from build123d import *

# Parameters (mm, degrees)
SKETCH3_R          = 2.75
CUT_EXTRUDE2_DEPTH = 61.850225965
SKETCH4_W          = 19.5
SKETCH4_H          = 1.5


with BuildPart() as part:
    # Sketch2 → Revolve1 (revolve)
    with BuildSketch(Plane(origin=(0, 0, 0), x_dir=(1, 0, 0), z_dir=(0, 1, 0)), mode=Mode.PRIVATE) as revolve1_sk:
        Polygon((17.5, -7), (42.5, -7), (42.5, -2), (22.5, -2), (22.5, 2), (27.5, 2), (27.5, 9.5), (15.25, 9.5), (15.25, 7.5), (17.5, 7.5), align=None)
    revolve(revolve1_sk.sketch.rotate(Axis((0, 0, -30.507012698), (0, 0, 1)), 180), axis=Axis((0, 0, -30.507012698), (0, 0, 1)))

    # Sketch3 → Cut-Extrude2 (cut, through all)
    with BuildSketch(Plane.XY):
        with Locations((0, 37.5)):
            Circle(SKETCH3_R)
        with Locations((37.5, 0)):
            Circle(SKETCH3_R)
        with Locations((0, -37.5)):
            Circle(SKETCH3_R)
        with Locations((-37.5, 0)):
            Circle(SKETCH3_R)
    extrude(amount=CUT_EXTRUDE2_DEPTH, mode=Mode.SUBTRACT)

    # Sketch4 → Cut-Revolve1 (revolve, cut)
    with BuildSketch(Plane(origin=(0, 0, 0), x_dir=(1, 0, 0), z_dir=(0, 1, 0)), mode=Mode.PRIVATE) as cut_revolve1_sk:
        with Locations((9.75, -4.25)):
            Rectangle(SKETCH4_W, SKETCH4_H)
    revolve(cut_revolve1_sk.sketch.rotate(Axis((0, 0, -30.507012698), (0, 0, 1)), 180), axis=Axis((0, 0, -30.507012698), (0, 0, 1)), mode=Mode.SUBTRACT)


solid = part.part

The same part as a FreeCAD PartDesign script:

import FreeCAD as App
import Part
import Sketcher

V = App.Vector


def add_polygon(sketch, points):
    """Adds a closed chain of lines whose ends are joined by coincident constraints."""
    first, n = sketch.GeometryCount, len(points)
    for a, b in zip(points, points[1:] + points[:1]):
        sketch.addGeometry(Part.LineSegment(App.Vector(*a, 0), App.Vector(*b, 0)), False)
    for i in range(n):
        sketch.addConstraint(Sketcher.Constraint("Coincident", first + i, 2, first + (i + 1) % n, 1))

doc = App.newDocument("Part")
body = doc.addObject("PartDesign::Body", "Body")

# Sketch on XZ plane
sketch1 = body.newObject("Sketcher::SketchObject", "Sketch")
sketch1.AttachmentSupport = (doc.getObject("XZ_Plane"), [""])
sketch1.MapMode = "FlatFace"
add_polygon(sketch1, [(17.5, 7), (42.5, 7), (42.5, 2), (22.5, 2), (22.5, -2), (27.5, -2), (27.5, -9.5), (15.2, -9.5), (15.2, -7.5), (17.5, -7.5)])  # lines 0-9
sketch1.addConstraint(Sketcher.Constraint("Horizontal", 0))
sketch1.addConstraint(Sketcher.Constraint("Vertical", 1))
sketch1.addConstraint(Sketcher.Constraint("Horizontal", 2))
sketch1.addConstraint(Sketcher.Constraint("Vertical", 3))
sketch1.addConstraint(Sketcher.Constraint("Horizontal", 4))
sketch1.addConstraint(Sketcher.Constraint("Vertical", 5))
sketch1.addConstraint(Sketcher.Constraint("Horizontal", 6))
sketch1.addConstraint(Sketcher.Constraint("Vertical", 7))
sketch1.addConstraint(Sketcher.Constraint("Horizontal", 8))
sketch1.addConstraint(Sketcher.Constraint("Vertical", 9))
sketch1.addConstraint(Sketcher.Constraint("Equal", 4, 1))
sketch1.addConstraint(Sketcher.Constraint("DistanceX", 0, 1, 0, 2, 25.0))
sketch1.addConstraint(Sketcher.Constraint("DistanceX", 2, 2, 2, 1, 20.0))
sketch1.addConstraint(Sketcher.Constraint("DistanceX", 4, 1, 4, 2, 5.0))
sketch1.addConstraint(Sketcher.Constraint("DistanceY", 3, 2, 3, 1, 4.0))
sketch1.addConstraint(Sketcher.Constraint("DistanceY", 7, 1, 7, 2, 2.0))
sketch1.addConstraint(Sketcher.Constraint("DistanceY", 5, 2, 5, 1, 7.5))
sketch1.addConstraint(Sketcher.Constraint("DistanceY", -1, 1, 0, 2, 7.0))
sketch1.addConstraint(Sketcher.Constraint("DistanceX", 6, 2, 6, 1, 12.25))
sketch1.addConstraint(Sketcher.Constraint("DistanceX", -1, 1, 0, 2, 42.5))
revolution = body.newObject("PartDesign::Revolution", "Revolution")
revolution.Profile = sketch1
revolution.ReferenceAxis = (sketch1, ["V_Axis"])
revolution.Angle = 360

# Sketch on XY plane
sketch2 = body.newObject("Sketcher::SketchObject", "Sketch001")
sketch2.AttachmentSupport = (doc.getObject("XY_Plane"), [""])
sketch2.MapMode = "FlatFace"
sketch2.addGeometry(Part.Circle(V(0, 37.5, 0), V(0, 0, 1), 2.8), False)
sketch2.addGeometry(Part.Circle(V(37.5, 0, 0), V(0, 0, 1), 2.8), False)
sketch2.addGeometry(Part.Circle(V(0, -37.5, 0), V(0, 0, 1), 2.8), False)
sketch2.addGeometry(Part.Circle(V(-37.5, 0, 0), V(0, 0, 1), 2.8), False)
sketch2.addConstraint(Sketcher.Constraint("Equal", 0, 1))
sketch2.addConstraint(Sketcher.Constraint("Equal", 1, 2))
sketch2.addConstraint(Sketcher.Constraint("Equal", 2, 3))
sketch2.addConstraint(Sketcher.Constraint("Symmetric", 0, 3, 2, 3, -1, 1))
sketch2.addConstraint(Sketcher.Constraint("Symmetric", 1, 3, 3, 3, -1, 1))
sketch2.addConstraint(Sketcher.Constraint("PointOnObject", 0, 3, -2))
sketch2.addConstraint(Sketcher.Constraint("PointOnObject", 1, 3, -1))
sketch2.addConstraint(Sketcher.Constraint("Diameter", 0, 5.5))
sketch2.addConstraint(Sketcher.Constraint("DistanceY", 2, 3, 0, 3, 75.0))
sketch2.addConstraint(Sketcher.Constraint("DistanceX", 3, 3, 1, 3, 75.0))
pocket1 = body.newObject("PartDesign::Pocket", "Pocket")
pocket1.Profile = sketch2
pocket1.Type = "ThroughAll"
pocket1.Reversed = True

# Sketch on XZ plane
sketch3 = body.newObject("Sketcher::SketchObject", "Sketch002")
sketch3.AttachmentSupport = (doc.getObject("XZ_Plane"), [""])
sketch3.MapMode = "FlatFace"
add_polygon(sketch3, [(0, 3.5), (0, 5), (19.5, 5), (19.5, 3.5)])  # lines 0-3
sketch3.addConstraint(Sketcher.Constraint("Vertical", 0))
sketch3.addConstraint(Sketcher.Constraint("Horizontal", 1))
sketch3.addConstraint(Sketcher.Constraint("Vertical", 2))
sketch3.addConstraint(Sketcher.Constraint("Horizontal", 3))
sketch3.addConstraint(Sketcher.Constraint("PointOnObject", 0, 2, -2))
sketch3.addConstraint(Sketcher.Constraint("DistanceX", 1, 1, 1, 2, 19.5))
sketch3.addConstraint(Sketcher.Constraint("DistanceY", 0, 1, 0, 2, 1.5))
sketch3.addConstraint(Sketcher.Constraint("DistanceY", -1, 1, 0, 2, 5.0))
groove = body.newObject("PartDesign::Groove", "Groove")
groove.Profile = sketch3
groove.ReferenceAxis = (sketch3, ["V_Axis"])
groove.Angle = 360

doc.recompute()
